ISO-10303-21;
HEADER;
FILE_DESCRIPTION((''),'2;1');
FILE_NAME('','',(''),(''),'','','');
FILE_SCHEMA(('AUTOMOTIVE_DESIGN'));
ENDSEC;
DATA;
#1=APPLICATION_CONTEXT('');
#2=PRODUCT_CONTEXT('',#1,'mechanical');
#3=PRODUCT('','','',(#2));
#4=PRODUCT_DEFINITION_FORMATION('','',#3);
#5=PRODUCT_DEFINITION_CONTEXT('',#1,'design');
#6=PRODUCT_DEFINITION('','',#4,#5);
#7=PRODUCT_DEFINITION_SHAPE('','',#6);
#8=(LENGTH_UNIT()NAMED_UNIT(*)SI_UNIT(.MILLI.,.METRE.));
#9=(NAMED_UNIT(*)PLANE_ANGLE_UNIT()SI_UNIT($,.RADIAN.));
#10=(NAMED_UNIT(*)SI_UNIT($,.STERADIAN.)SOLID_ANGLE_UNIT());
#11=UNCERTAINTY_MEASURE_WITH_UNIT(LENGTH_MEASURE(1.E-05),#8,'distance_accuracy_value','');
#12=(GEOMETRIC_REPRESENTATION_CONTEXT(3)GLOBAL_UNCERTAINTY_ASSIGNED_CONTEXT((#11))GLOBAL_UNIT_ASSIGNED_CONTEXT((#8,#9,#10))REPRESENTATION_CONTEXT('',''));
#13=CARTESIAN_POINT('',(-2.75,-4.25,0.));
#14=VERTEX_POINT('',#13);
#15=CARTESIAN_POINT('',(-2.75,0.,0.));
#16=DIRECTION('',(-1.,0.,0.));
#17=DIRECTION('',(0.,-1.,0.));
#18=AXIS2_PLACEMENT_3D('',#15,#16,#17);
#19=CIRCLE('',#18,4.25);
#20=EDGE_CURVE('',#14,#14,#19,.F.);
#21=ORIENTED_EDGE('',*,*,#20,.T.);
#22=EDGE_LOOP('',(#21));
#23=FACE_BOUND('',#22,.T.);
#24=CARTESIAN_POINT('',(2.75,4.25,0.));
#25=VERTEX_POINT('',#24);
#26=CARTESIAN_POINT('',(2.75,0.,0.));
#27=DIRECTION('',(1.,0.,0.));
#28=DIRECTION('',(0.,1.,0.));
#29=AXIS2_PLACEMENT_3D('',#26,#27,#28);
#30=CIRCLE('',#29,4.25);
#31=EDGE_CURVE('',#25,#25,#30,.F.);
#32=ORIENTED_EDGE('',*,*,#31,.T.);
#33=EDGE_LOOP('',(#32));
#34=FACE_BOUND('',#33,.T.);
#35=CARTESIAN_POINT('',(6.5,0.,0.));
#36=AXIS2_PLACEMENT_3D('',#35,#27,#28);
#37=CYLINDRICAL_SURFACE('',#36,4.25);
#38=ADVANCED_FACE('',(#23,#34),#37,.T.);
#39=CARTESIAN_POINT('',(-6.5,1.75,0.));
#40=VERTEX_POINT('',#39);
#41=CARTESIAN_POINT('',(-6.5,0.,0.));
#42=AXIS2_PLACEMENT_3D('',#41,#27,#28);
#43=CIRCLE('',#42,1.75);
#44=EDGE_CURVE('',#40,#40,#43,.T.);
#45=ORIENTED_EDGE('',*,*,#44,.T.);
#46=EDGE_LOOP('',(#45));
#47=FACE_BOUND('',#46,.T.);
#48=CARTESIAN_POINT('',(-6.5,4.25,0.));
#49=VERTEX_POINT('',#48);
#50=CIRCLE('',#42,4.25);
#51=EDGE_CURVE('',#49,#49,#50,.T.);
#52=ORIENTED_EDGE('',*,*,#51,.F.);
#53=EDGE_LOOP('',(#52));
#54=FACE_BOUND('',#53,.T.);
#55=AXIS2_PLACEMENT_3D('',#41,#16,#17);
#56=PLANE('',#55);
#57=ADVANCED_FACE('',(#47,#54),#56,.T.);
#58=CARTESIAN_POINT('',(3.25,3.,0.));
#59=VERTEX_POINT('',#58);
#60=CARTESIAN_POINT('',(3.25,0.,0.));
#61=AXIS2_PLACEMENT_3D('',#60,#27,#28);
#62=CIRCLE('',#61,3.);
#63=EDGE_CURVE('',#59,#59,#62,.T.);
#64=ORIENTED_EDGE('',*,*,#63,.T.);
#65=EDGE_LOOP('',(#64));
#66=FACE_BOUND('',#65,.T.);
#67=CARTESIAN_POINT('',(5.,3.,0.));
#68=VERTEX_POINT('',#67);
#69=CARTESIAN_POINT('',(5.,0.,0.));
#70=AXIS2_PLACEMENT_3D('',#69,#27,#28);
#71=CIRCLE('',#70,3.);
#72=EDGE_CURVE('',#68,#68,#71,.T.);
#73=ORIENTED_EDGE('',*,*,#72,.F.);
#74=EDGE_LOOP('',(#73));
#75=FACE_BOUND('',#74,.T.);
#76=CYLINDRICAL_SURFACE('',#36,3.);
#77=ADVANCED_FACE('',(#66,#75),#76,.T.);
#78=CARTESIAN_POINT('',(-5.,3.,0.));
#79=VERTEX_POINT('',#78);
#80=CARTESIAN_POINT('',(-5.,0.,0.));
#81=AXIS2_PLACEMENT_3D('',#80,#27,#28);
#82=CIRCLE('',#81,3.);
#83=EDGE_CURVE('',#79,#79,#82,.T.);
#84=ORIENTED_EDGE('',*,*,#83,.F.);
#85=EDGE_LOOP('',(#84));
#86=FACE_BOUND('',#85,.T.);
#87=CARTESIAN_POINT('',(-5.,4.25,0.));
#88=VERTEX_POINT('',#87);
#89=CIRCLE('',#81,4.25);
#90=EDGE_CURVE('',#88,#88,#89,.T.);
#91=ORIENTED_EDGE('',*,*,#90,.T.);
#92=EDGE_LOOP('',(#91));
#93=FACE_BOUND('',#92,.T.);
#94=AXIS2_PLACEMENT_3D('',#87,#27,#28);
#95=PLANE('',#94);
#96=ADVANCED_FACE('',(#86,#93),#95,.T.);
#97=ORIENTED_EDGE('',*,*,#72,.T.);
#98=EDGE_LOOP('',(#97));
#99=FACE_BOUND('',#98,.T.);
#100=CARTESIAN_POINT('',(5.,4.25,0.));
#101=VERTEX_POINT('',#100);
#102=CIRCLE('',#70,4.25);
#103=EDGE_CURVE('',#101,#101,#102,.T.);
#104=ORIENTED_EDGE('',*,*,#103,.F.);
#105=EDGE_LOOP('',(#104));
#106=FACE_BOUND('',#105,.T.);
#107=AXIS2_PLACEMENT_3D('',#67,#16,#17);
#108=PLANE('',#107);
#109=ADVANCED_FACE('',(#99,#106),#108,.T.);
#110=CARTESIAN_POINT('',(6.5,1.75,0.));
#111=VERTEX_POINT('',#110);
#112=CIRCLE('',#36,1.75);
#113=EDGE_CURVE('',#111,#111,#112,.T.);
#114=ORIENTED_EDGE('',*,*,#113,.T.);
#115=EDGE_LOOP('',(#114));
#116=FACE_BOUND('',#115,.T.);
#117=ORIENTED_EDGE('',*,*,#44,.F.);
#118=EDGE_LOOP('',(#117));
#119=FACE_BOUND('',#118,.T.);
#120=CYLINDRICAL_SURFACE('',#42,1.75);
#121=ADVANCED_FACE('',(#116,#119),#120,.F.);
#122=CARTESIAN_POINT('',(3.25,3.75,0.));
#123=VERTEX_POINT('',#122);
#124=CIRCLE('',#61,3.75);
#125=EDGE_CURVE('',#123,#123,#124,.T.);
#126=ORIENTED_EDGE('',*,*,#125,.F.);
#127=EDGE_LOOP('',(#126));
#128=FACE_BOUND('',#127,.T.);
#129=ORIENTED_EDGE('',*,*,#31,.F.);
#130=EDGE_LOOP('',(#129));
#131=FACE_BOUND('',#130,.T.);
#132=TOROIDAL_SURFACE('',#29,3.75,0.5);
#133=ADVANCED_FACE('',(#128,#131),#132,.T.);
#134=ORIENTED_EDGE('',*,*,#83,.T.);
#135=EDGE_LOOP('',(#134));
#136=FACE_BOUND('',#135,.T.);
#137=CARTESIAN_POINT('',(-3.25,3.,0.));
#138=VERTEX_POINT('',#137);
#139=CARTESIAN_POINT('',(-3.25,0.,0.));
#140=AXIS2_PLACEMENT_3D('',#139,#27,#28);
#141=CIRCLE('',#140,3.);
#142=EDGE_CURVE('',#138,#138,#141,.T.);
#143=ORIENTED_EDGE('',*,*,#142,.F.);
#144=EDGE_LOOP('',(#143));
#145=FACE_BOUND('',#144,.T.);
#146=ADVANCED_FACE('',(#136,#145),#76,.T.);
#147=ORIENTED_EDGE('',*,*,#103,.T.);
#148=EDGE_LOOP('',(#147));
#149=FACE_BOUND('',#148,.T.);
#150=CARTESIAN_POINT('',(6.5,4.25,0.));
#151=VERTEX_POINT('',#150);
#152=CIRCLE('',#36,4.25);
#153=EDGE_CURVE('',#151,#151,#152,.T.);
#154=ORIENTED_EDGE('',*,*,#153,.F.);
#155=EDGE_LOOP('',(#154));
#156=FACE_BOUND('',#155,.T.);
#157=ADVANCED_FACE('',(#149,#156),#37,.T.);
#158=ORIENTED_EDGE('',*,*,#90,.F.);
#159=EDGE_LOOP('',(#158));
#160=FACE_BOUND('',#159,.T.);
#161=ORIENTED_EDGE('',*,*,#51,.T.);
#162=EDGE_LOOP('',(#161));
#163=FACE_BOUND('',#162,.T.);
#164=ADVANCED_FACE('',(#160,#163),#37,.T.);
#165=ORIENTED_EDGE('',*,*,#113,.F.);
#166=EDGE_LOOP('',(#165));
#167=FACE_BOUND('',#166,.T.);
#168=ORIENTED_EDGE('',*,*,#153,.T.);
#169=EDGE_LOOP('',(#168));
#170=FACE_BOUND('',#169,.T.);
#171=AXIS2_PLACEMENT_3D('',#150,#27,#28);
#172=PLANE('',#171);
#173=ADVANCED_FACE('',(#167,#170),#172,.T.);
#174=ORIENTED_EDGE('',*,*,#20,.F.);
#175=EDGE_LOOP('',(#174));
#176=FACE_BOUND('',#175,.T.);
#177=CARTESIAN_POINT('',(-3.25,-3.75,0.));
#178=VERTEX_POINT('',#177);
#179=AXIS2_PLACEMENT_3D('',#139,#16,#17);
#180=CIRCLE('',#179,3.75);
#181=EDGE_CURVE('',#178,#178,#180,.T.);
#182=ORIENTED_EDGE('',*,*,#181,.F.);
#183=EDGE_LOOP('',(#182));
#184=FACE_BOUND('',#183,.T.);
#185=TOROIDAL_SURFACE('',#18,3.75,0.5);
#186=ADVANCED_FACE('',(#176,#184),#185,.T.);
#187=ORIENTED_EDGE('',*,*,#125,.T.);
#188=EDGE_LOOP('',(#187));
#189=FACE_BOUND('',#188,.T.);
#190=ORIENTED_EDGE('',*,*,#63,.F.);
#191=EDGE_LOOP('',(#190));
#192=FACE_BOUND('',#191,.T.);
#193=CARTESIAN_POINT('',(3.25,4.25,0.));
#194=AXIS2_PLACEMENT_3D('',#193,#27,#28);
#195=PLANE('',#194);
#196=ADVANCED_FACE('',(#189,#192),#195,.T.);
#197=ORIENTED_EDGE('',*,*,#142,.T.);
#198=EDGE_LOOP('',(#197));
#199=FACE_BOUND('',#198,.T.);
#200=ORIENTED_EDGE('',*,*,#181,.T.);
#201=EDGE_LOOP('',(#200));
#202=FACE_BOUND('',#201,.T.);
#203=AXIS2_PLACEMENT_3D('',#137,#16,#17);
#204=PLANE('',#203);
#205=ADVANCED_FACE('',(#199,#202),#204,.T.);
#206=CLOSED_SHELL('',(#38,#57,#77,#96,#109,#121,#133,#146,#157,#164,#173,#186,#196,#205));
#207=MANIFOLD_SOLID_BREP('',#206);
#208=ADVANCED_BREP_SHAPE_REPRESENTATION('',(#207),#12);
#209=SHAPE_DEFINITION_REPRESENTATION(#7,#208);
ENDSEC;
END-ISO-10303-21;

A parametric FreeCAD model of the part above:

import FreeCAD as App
import Part
import Sketcher


def edges_at(feature, points):
    """Names of the edges that pass closest to the given points."""
    edges = feature.Shape.Edges
    near = lambda p: min(range(len(edges)), key=lambda i: edges[i].distToShape(Part.Vertex(*p))[0])
    return sorted({f"Edge{near(p) + 1}" for p in points})

doc = App.newDocument("Part")
params = doc.addObject("Spreadsheet::Sheet", "Params")
for row, (alias, value) in enumerate([
    ("sketch1_width", "13 mm"),
    ("sketch1_width2", "1.5 mm"),
    ("sketch1_width3", "6.5 mm"),
    ("sketch1_height", "4.25 mm"),
    ("revolution_angle", "360 deg"),
    ("sketch2_diameter", "3.5 mm"),
    ("fillet_radius", "0.5 mm"),
], start=1):
    params.set(f"A{row}", alias)
    params.set(f"B{row}", "=" + value)
    params.setAlias(f"B{row}", alias)

body = doc.addObject("PartDesign::Body", "Body")

sketch1 = doc.addObject("Sketcher::SketchObject", "Sketch")
body.addObject(sketch1)
sketch1.AttachmentSupport = (doc.XY_Plane, [""])
sketch1.MapMode = "FlatFace"
sketch1.addGeometry([
    Part.LineSegment(App.Vector(-6.5, 4.2, 0), App.Vector(-6.5, 0, 0)),
    Part.LineSegment(App.Vector(-6.5, 0, 0), App.Vector(6.5, 0, 0)),
    Part.LineSegment(App.Vector(6.5, 0, 0), App.Vector(6.5, 4.2, 0)),
    Part.LineSegment(App.Vector(6.5, 4.2, 0), App.Vector(5, 4.2, 0)),
    Part.LineSegment(App.Vector(5, 4.2, 0), App.Vector(5, 3, 0)),
    Part.LineSegment(App.Vector(5, 3, 0), App.Vector(3.2, 3, 0)),
    Part.LineSegment(App.Vector(3.2, 3, 0), App.Vector(3.2, 4.2, 0)),
    Part.LineSegment(App.Vector(3.2, 4.2, 0), App.Vector(-3.2, 4.2, 0)),
    Part.LineSegment(App.Vector(-3.2, 4.2, 0), App.Vector(-3.2, 3, 0)),
    Part.LineSegment(App.Vector(-3.2, 3, 0), App.Vector(-5, 3, 0)),
    Part.LineSegment(App.Vector(-5, 3, 0), App.Vector(-5, 4.2, 0)),
    Part.LineSegment(App.Vector(-5, 4.2, 0), App.Vector(-6.5, 4.2, 0)),
], False)
sketch1.addConstraint([
    Sketcher.Constraint("Coincident", 0, 2, 1, 1),
    Sketcher.Constraint("Coincident", 1, 2, 2, 1),
    Sketcher.Constraint("Coincident", 2, 2, 3, 1),
    Sketcher.Constraint("Coincident", 3, 2, 4, 1),
    Sketcher.Constraint("Coincident", 4, 2, 5, 1),
    Sketcher.Constraint("Coincident", 5, 2, 6, 1),
    Sketcher.Constraint("Coincident", 6, 2, 7, 1),
    Sketcher.Constraint("Coincident", 7, 2, 8, 1),
    Sketcher.Constraint("Coincident", 8, 2, 9, 1),
    Sketcher.Constraint("Coincident", 9, 2, 10, 1),
    Sketcher.Constraint("Coincident", 10, 2, 11, 1),
    Sketcher.Constraint("Coincident", 11, 2, 0, 1),
    Sketcher.Constraint("Vertical", 0),
    Sketcher.Constraint("Horizontal", 1),
    Sketcher.Constraint("Vertical", 2),
    Sketcher.Constraint("Horizontal", 3),
    Sketcher.Constraint("Vertical", 4),
    Sketcher.Constraint("Horizontal", 5),
    Sketcher.Constraint("Vertical", 6),
    Sketcher.Constraint("Horizontal", 7),
    Sketcher.Constraint("Vertical", 8),
    Sketcher.Constraint("Horizontal", 9),
    Sketcher.Constraint("Vertical", 10),
    Sketcher.Constraint("Horizontal", 11),
    Sketcher.Constraint("Symmetric", 0, 2, 1, 2, -1, 1),
    Sketcher.Constraint("Symmetric", 5, 2, 8, 2, -2),
    Sketcher.Constraint("Symmetric", 3, 2, 10, 2, -2),
    Sketcher.Constraint("Horizontal", 3, 2, 6, 2),
    Sketcher.Constraint("DistanceX", 1, 1, 1, 2, 13.0),
    Sketcher.Constraint("DistanceX", 3, 2, 3, 1, 1.5),
    Sketcher.Constraint("DistanceX", 7, 2, 7, 1, 6.5),
    Sketcher.Constraint("DistanceY", -1, 1, 4, 2, 3.0),
    Sketcher.Constraint("DistanceY", 0, 2, 0, 1, 4.25),
])
sketch1.setExpression("Constraints[28]", "Params.sketch1_width")
sketch1.setExpression("Constraints[29]", "Params.sketch1_width2")
sketch1.setExpression("Constraints[30]", "Params.sketch1_width3")
sketch1.setExpression("Constraints[32]", "Params.sketch1_height")
revolution = doc.addObject("PartDesign::Revolution", "Revolution")
body.addObject(revolution)
revolution.Profile = sketch1
revolution.ReferenceAxis = (sketch1, ["H_Axis"])
revolution.setExpression("Angle", "Params.revolution_angle")

sketch2 = doc.addObject("Sketcher::SketchObject", "Sketch001")
body.addObject(sketch2)
sketch2.AttachmentSupport = (doc.YZ_Plane, [""])
sketch2.MapMode = "FlatFace"
sketch2.AttachmentOffset = App.Placement(App.Vector(0, 0, 6.5), App.Rotation())
sketch2.addGeometry(Part.Circle(App.Vector(0, 0, 0), App.Vector(0, 0, 1), 1.8), False)
sketch2.addConstraint([
    Sketcher.Constraint("Coincident", 0, 3, -1, 1),
    Sketcher.Constraint("Diameter", 0, 3.5),
])
sketch2.setExpression("Constraints[1]", "Params.sketch2_diameter")
pocket1 = doc.addObject("PartDesign::Pocket", "Pocket")
body.addObject(pocket1)
pocket1.Profile = sketch2
pocket1.Type = "ThroughAll"
doc.recompute()

fillet = doc.addObject("PartDesign::Fillet", "Fillet")
body.addObject(fillet)
fillet.Base = (pocket1, edges_at(pocket1, [(3.25, -4.25, 0), (-3.25, -4.25, 0)]))
fillet.setExpression("Radius", "Params.fillet_radius")

doc.recompute()
